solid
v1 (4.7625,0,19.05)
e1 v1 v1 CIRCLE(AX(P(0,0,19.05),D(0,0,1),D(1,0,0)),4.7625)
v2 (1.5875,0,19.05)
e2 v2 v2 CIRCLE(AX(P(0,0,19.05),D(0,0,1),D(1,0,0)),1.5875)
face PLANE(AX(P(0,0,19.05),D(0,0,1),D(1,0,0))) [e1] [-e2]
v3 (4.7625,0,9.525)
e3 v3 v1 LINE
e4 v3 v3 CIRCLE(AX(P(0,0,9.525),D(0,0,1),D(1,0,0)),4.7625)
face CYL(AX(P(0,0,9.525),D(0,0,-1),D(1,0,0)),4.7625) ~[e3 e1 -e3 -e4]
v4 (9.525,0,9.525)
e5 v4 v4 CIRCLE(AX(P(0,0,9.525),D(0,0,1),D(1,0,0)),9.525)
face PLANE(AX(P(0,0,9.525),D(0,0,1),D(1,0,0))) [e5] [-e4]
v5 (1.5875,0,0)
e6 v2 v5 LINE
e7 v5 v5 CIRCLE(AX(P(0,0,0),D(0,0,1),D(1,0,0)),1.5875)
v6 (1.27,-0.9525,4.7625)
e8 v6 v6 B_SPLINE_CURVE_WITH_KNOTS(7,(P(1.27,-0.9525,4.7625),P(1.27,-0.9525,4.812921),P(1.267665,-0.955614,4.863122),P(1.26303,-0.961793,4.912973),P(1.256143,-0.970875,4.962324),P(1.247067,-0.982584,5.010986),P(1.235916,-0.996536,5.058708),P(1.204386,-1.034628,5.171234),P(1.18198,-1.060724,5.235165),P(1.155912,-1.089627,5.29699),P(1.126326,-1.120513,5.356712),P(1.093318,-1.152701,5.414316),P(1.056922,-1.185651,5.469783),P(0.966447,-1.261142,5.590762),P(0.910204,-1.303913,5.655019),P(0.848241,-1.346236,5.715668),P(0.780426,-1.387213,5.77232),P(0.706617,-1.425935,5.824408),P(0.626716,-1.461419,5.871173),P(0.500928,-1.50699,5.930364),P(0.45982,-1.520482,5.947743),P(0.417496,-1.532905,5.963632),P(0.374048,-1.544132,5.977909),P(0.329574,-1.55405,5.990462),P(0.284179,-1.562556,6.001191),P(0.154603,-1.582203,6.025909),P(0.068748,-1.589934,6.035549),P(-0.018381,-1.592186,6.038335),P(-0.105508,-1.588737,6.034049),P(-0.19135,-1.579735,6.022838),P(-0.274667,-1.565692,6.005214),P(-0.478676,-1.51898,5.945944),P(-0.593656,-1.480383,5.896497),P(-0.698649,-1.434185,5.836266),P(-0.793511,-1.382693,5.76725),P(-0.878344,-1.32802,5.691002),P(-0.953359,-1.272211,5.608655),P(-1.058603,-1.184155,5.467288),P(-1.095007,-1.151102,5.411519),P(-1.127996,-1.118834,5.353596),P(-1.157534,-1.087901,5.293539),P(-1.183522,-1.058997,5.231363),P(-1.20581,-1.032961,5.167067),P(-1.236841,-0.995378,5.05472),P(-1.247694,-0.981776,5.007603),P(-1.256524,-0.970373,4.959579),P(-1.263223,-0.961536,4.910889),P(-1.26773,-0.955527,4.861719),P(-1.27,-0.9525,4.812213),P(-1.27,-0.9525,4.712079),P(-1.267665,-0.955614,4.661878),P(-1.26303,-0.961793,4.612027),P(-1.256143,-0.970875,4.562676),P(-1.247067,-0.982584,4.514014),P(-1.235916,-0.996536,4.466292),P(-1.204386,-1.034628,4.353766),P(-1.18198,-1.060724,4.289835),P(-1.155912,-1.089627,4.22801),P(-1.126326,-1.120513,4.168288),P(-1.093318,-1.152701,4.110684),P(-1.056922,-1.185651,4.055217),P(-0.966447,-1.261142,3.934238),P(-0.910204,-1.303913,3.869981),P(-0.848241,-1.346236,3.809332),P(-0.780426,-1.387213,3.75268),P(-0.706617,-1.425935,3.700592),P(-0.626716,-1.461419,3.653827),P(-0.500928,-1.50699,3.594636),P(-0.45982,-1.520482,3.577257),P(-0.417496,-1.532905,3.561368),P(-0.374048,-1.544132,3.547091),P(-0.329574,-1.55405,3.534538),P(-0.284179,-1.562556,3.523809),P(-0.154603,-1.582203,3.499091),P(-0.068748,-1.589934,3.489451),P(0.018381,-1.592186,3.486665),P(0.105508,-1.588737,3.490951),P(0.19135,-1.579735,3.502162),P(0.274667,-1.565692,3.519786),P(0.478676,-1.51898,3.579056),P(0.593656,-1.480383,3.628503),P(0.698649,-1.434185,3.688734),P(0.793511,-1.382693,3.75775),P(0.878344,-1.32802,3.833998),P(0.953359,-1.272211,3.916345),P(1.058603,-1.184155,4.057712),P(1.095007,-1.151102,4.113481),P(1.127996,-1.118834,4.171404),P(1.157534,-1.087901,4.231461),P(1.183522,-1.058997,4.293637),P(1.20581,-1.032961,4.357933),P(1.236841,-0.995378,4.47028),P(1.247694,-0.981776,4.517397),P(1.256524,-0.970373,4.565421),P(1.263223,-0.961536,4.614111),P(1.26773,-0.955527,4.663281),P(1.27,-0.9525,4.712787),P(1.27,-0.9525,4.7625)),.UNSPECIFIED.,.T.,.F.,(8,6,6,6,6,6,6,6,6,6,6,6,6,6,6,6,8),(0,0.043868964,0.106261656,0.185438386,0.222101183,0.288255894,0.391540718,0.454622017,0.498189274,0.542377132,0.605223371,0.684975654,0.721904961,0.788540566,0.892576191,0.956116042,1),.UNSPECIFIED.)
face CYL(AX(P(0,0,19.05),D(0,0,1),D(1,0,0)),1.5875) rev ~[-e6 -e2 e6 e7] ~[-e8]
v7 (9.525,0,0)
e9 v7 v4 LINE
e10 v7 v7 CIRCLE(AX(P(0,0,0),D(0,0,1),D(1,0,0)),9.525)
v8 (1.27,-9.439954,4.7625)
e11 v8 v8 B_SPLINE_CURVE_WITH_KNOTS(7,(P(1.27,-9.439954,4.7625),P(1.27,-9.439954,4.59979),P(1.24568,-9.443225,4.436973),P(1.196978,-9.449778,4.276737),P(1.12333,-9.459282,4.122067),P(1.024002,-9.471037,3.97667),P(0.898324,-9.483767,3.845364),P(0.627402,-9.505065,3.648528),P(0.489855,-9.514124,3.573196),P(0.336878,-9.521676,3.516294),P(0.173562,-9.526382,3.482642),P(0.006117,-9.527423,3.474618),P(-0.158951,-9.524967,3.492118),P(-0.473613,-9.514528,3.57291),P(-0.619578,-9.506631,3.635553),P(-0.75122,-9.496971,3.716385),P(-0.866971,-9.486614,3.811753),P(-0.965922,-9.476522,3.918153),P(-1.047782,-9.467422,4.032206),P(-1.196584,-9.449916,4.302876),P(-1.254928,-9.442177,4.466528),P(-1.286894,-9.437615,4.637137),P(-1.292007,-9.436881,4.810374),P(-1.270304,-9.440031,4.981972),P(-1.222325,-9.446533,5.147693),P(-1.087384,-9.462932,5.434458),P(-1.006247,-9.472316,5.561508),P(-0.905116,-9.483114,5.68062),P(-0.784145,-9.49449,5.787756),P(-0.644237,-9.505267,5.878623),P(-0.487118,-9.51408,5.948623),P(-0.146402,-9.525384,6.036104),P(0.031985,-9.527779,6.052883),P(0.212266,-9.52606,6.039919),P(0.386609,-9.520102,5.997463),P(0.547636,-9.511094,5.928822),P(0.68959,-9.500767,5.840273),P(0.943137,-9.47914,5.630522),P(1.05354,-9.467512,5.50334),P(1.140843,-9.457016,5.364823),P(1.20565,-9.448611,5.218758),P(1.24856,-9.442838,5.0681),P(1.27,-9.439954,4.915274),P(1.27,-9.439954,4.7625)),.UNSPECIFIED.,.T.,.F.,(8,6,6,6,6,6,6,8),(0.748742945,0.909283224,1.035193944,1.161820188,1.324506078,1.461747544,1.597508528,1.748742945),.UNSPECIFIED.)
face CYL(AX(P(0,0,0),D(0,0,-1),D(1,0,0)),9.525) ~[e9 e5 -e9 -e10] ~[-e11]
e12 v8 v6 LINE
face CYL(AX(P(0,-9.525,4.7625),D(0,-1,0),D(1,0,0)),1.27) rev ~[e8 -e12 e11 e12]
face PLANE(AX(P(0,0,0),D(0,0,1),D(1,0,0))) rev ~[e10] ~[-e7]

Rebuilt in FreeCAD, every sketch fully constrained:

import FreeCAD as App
import Part
import Sketcher
from FreeCAD import Vector
Q = App.Units.Quantity

doc = App.newDocument("Part")
body = doc.addObject("PartDesign::Body", "Body")

# Sketch on XY plane
sketch1 = body.newObject("Sketcher::SketchObject", "Sketch")
sketch1.AttachmentSupport = (doc.getObject("XY_Plane"), [""])
sketch1.MapMode = "FlatFace"
sketch1.addGeometry(Part.Circle(Vector(0, 0, 0), Vector(0, 0, 1), 10), False)
sketch1.addConstraint(Sketcher.Constraint("Coincident", 0, 3, -1, 1))
sketch1.addConstraint(Sketcher.Constraint("Diameter", 0, Q("0.75 in")))
pad1 = body.newObject("PartDesign::Pad", "Pad")
pad1.Profile = sketch1
pad1.Length = Q("0.375 in")

# Sketch on XY plane
sketch2 = body.newObject("Sketcher::SketchObject", "Sketch001")
sketch2.AttachmentSupport = (doc.getObject("XY_Plane"), [""])
sketch2.MapMode = "FlatFace"
sketch2.AttachmentOffset = App.Placement(Vector(0, 0, 0.375 * 25.4), App.Rotation())
sketch2.addGeometry(Part.Circle(Vector(0, 0, 0), Vector(0, 0, 1), 4.8), False)
sketch2.addConstraint(Sketcher.Constraint("Coincident", 0, 3, -1, 1))
sketch2.addConstraint(Sketcher.Constraint("Diameter", 0, Q("0.375 in")))
pad2 = body.newObject("PartDesign::Pad", "Pad001")
pad2.Profile = sketch2
pad2.Length = Q("0.375 in")

# Sketch on XZ plane
sketch3 = body.newObject("Sketcher::SketchObject", "Sketch002")
sketch3.AttachmentSupport = (doc.getObject("XZ_Plane"), [""])
sketch3.MapMode = "FlatFace"
sketch3.AttachmentOffset = App.Placement(Vector(0, 0, 0.375 * 25.4), App.Rotation())
sketch3.addGeometry(Part.Circle(Vector(0, 4.8, 0), Vector(0, 0, 1), 1.3), False)
sketch3.addConstraint(Sketcher.Constraint("PointOnObject", 0, 3, -2))
sketch3.addConstraint(Sketcher.Constraint("Diameter", 0, Q("0.1 in")))
sketch3.addConstraint(Sketcher.Constraint("DistanceY", -1, 1, 0, 3, Q("0.1875 in")))
pocket1 = body.newObject("PartDesign::Pocket", "Pocket")
pocket1.Profile = sketch3
pocket1.Length = Q("0.375 in")

# Sketch on XY plane
sketch4 = body.newObject("Sketcher::SketchObject", "Sketch003")
sketch4.AttachmentSupport = (doc.getObject("XY_Plane"), [""])
sketch4.MapMode = "FlatFace"
sketch4.AttachmentOffset = App.Placement(Vector(0, 0, 0.75 * 25.4), App.Rotation())
sketch4.addGeometry(Part.Circle(Vector(0, 0, 0), Vector(0, 0, 1), 1.6), False)
sketch4.addConstraint(Sketcher.Constraint("Coincident", 0, 3, -1, 1))
sketch4.addConstraint(Sketcher.Constraint("Diameter", 0, Q("0.125 in")))
pocket2 = body.newObject("PartDesign::Pocket", "Pocket001")
pocket2.Profile = sketch4
pocket2.Type = "ThroughAll"

doc.recompute()
